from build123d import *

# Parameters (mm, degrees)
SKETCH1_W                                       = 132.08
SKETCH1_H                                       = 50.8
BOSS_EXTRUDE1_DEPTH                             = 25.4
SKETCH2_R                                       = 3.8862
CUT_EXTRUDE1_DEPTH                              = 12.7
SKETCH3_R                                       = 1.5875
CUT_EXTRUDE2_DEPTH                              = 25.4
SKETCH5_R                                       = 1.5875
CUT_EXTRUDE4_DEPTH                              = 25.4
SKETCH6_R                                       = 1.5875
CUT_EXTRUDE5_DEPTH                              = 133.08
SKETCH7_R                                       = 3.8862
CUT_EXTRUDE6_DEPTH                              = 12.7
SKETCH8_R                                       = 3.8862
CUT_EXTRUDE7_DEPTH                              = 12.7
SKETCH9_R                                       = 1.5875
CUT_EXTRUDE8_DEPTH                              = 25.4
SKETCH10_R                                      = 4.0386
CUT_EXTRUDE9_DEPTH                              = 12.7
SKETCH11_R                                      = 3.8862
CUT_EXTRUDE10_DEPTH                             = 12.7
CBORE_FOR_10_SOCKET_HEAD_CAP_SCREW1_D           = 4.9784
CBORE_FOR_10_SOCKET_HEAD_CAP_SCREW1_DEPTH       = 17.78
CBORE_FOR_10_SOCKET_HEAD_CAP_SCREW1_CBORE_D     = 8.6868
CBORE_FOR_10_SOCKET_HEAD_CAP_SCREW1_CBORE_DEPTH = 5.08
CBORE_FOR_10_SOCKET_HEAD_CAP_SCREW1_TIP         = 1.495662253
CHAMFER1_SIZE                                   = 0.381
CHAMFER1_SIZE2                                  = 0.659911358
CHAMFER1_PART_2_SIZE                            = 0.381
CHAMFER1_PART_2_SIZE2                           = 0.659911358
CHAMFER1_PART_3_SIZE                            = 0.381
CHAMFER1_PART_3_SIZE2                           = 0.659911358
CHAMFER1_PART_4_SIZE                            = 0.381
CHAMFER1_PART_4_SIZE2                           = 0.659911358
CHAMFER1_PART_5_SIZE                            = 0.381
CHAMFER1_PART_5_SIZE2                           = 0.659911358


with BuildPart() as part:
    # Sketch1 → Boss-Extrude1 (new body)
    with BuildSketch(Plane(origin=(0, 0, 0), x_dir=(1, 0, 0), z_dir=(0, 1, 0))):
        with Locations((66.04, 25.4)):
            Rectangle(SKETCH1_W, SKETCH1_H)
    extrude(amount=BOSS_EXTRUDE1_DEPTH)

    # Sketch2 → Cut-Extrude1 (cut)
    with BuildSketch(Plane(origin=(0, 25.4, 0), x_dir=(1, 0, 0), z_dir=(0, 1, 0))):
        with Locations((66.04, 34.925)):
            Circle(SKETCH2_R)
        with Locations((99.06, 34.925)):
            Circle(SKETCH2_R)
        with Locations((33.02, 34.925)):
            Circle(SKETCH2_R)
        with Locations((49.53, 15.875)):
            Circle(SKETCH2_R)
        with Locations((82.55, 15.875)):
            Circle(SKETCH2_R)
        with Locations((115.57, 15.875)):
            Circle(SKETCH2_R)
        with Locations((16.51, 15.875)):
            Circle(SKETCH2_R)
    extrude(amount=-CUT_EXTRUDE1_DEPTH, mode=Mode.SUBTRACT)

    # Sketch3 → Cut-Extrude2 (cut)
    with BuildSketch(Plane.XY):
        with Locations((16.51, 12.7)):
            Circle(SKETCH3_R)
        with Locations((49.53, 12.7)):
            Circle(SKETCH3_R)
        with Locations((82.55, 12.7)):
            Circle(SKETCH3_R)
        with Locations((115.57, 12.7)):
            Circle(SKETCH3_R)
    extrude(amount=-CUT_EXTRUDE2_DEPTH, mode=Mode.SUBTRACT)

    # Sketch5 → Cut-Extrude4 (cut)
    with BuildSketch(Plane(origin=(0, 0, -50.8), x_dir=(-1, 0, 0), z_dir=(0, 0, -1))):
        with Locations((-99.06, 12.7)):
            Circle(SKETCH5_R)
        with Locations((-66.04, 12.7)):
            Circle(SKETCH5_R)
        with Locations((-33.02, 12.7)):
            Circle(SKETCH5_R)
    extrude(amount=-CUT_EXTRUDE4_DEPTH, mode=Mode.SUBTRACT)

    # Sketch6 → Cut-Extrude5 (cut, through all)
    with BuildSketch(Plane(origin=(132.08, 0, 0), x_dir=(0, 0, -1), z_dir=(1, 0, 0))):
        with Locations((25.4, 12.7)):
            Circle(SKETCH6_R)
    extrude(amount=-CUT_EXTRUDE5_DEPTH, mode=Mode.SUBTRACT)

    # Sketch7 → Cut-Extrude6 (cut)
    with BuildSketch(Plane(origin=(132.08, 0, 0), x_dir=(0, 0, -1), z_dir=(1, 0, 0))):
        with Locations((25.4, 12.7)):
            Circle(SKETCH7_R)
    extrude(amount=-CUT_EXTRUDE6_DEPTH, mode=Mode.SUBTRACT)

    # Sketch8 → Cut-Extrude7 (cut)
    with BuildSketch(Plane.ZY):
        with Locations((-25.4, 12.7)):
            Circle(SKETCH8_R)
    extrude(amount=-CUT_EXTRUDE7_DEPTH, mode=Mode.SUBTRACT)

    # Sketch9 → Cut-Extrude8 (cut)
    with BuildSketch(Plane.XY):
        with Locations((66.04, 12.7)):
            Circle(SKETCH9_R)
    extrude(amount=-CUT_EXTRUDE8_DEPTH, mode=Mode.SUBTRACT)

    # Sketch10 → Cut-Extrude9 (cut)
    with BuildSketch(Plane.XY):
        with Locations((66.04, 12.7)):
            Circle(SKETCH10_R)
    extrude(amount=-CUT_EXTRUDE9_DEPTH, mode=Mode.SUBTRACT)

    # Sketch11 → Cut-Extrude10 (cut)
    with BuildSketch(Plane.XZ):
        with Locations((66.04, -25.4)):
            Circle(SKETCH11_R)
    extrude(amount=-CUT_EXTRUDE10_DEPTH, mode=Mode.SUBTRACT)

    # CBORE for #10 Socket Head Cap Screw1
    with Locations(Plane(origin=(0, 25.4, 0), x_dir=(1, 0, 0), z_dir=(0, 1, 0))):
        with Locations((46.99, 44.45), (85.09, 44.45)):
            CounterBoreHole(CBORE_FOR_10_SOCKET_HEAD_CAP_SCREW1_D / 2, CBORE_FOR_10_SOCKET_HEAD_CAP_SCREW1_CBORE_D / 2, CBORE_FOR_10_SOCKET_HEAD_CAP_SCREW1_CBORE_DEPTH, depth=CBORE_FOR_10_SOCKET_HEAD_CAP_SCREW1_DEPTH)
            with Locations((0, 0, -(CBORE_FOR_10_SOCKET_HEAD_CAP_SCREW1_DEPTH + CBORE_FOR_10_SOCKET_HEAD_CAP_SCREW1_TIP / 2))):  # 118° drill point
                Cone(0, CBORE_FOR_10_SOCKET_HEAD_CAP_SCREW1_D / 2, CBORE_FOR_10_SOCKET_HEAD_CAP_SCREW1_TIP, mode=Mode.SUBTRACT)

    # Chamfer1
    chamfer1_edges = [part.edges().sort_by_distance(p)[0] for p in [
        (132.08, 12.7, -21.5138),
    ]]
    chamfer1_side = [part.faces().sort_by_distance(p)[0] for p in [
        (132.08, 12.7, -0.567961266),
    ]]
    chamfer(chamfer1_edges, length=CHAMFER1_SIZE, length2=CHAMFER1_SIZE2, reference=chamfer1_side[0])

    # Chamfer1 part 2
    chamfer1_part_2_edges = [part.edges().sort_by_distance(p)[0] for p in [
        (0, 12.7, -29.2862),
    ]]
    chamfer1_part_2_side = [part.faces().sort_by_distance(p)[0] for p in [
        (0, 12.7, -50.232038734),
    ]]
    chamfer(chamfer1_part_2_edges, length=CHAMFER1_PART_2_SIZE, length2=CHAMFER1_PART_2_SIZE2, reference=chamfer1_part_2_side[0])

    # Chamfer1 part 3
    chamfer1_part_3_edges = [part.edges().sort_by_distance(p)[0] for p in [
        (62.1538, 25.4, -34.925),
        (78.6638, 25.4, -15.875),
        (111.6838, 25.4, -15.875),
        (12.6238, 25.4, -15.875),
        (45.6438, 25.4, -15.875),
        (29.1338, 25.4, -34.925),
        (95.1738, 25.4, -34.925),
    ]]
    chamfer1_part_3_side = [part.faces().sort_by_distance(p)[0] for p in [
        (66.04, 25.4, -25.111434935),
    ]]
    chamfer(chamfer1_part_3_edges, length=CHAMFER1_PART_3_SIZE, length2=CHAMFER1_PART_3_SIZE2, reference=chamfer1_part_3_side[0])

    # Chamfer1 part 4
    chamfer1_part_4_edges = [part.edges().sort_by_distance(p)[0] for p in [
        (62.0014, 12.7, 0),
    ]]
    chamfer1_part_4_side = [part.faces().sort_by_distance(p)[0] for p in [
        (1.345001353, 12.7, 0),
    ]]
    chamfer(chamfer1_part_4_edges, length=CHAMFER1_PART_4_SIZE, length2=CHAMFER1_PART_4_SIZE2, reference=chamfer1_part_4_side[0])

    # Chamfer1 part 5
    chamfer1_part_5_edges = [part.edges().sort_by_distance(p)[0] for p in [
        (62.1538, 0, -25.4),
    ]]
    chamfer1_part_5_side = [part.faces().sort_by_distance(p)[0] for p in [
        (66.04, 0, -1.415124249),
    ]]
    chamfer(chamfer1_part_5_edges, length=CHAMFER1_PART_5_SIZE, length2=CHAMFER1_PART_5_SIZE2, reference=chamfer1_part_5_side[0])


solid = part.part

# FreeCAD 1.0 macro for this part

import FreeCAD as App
import Part
import Sketcher

V = App.Vector
Q = App.Units.Quantity


def edges_at(feature, points):
    """Names of the edges that pass closest to the given points."""
    edges = feature.Shape.Edges
    near = lambda p: min(range(len(edges)), key=lambda i: edges[i].distToShape(Part.Vertex(*p))[0])
    return sorted({f"Edge{near(p) + 1}" for p in points})

doc = App.newDocument("Part")
body = doc.addObject("PartDesign::Body", "Body")

# Sketch on XZ plane
sketch1 = body.newObject("Sketcher::SketchObject", "Sketch")
sketch1.AttachmentSupport = (doc.getObject("XZ_Plane"), [""])
sketch1.MapMode = "FlatFace"
sketch1.addGeometry([
    Part.LineSegment(V(0, -50.8, 0), V(0, 0, 0)),
    Part.LineSegment(V(0, 0, 0), V(132.08, 0, 0)),
    Part.LineSegment(V(132.08, 0, 0), V(132.08, -50.8, 0)),
    Part.LineSegment(V(132.08, -50.8, 0), V(0, -50.8, 0)),
], False)
sketch1.addConstraint([
    Sketcher.Constraint("Coincident", 0, 2, 1, 1),
    Sketcher.Constraint("Coincident", 1, 2, 2, 1),
    Sketcher.Constraint("Coincident", 2, 2, 3, 1),
    Sketcher.Constraint("Coincident", 3, 2, 0, 1),
    Sketcher.Constraint("Vertical", 0),
    Sketcher.Constraint("Horizontal", 1),
    Sketcher.Constraint("Vertical", 2),
    Sketcher.Constraint("Horizontal", 3),
    Sketcher.Constraint("Coincident", 0, 2, -1, 1),
    Sketcher.Constraint("DistanceY", 0, 1, 0, 2, Q("2 in")),
    Sketcher.Constraint("DistanceX", 1, 1, 1, 2, Q("5.2 in")),
])
pad1 = body.newObject("PartDesign::Pad", "Pad")
pad1.Profile = sketch1
pad1.Length = Q("1 in")
pad1.Reversed = True

# Sketch on XZ plane
sketch2 = body.newObject("Sketcher::SketchObject", "Sketch001")
sketch2.AttachmentSupport = (doc.getObject("XZ_Plane"), [""])
sketch2.MapMode = "FlatFace"
sketch2.AttachmentOffset = App.Placement(V(0, 0, -1 * 25.4), App.Rotation())
sketch2.addGeometry([
    Part.Circle(V(66.04, -34.925, 0), V(0, 0, 1), 3.8862),  # 0
    Part.Circle(V(99.06, -34.925, 0), V(0, 0, 1), 3.8862),  # 1
    Part.Circle(V(33.02, -34.925, 0), V(0, 0, 1), 3.8862),  # 2
    Part.Circle(V(49.53, -15.875, 0), V(0, 0, 1), 3.8862),  # 3
    Part.Circle(V(82.55, -15.875, 0), V(0, 0, 1), 3.8862),  # 4
    Part.Circle(V(115.57, -15.875, 0), V(0, 0, 1), 3.8862),  # 5
    Part.Circle(V(16.51, -15.875, 0), V(0, 0, 1), 3.8862),  # 6
], False)
sketch2.addConstraint([
    Sketcher.Constraint("Equal", 0, 1),
    Sketcher.Constraint("Equal", 1, 2),
    Sketcher.Constraint("Equal", 2, 3),
    Sketcher.Constraint("Equal", 3, 4),
    Sketcher.Constraint("Equal", 4, 5),
    Sketcher.Constraint("Equal", 5, 6),
    Sketcher.Constraint("Horizontal", 0, 3, 1, 3),
    Sketcher.Constraint("Horizontal", 1, 3, 2, 3),
    Sketcher.Constraint("Horizontal", 3, 3, 4, 3),
    Sketcher.Constraint("Horizontal", 4, 3, 5, 3),
    Sketcher.Constraint("Horizontal", 5, 3, 6, 3),
    Sketcher.Constraint("Diameter", 0, Q("0.306 in")),
    Sketcher.Constraint("DistanceX", -1, 1, 0, 3, Q("2.6 in")),
    Sketcher.Constraint("DistanceX", -1, 1, 1, 3, Q("3.9 in")),
    Sketcher.Constraint("DistanceX", -1, 1, 2, 3, Q("1.3 in")),
    Sketcher.Constraint("DistanceX", 3, 3, 4, 3, Q("1.3 in")),
    Sketcher.Constraint("DistanceX", 4, 3, 5, 3, Q("1.3 in")),
    Sketcher.Constraint("DistanceX", 6, 3, 3, 3, Q("1.3 in")),
    Sketcher.Constraint("DistanceX", -1, 1, 3, 3, Q("1.95 in")),
    Sketcher.Constraint("DistanceY", 2, 3, 3, 3, Q("0.75 in")),
    Sketcher.Constraint("DistanceY", 0, 3, -1, 1, Q("1.375 in")),
])
pocket1 = body.newObject("PartDesign::Pocket", "Pocket")
pocket1.Profile = sketch2
pocket1.Length = Q("0.5 in")
pocket1.Reversed = True

# Sketch on XY plane
sketch3 = body.newObject("Sketcher::SketchObject", "Sketch002")
sketch3.AttachmentSupport = (doc.getObject("XY_Plane"), [""])
sketch3.MapMode = "FlatFace"
sketch3.addGeometry([
    Part.Circle(V(16.51, 12.7, 0), V(0, 0, 1), 1.5875),
    Part.Circle(V(49.53, 12.7, 0), V(0, 0, 1), 1.5875),
    Part.Circle(V(82.55, 12.7, 0), V(0, 0, 1), 1.5875),
    Part.Circle(V(115.57, 12.7, 0), V(0, 0, 1), 1.5875),
], False)
sketch3.addConstraint([
    Sketcher.Constraint("Equal", 0, 1),
    Sketcher.Constraint("Equal", 1, 2),
    Sketcher.Constraint("Equal", 2, 3),
    Sketcher.Constraint("Horizontal", 0, 3, 1, 3),
    Sketcher.Constraint("Horizontal", 1, 3, 2, 3),
    Sketcher.Constraint("Horizontal", 2, 3, 3, 3),
    Sketcher.Constraint("Diameter", 0, Q("0.125 in")),
    Sketcher.Constraint("DistanceY", -1, 1, 0, 3, Q("0.5 in")),
    Sketcher.Constraint("DistanceX", 0, 3, 1, 3, Q("1.3 in")),
    Sketcher.Constraint("DistanceX", 1, 3, 2, 3, Q("1.3 in")),
    Sketcher.Constraint("DistanceX", 2, 3, 3, 3, Q("1.3 in")),
    Sketcher.Constraint("DistanceX", -1, 1, 0, 3, Q("0.65 in")),
])
pocket2 = body.newObject("PartDesign::Pocket", "Pocket001")
pocket2.Profile = sketch3
pocket2.Length = Q("1 in")

# Sketch on XY plane
sketch4 = body.newObject("Sketcher::SketchObject", "Sketch003")
sketch4.AttachmentSupport = (doc.getObject("XY_Plane"), [""])
sketch4.MapMode = "FlatFace"
sketch4.AttachmentOffset = App.Placement(V(0, 0, -2 * 25.4), App.Rotation())
sketch4.addGeometry([
    Part.Circle(V(99.06, 12.7, 0), V(0, 0, 1), 1.5875),
    Part.Circle(V(66.04, 12.7, 0), V(0, 0, 1), 1.5875),
    Part.Circle(V(33.02, 12.7, 0), V(0, 0, 1), 1.5875),
], False)
sketch4.addConstraint([
    Sketcher.Constraint("Equal", 0, 1),
    Sketcher.Constraint("Equal", 1, 2),
    Sketcher.Constraint("Horizontal", 0, 3, 1, 3),
    Sketcher.Constraint("Horizontal", 1, 3, 2, 3),
    Sketcher.Constraint("Diameter", 0, Q("0.125 in")),
    Sketcher.Constraint("DistanceX", -1, 1, 0, 3, Q("3.9 in")),
    Sketcher.Constraint("DistanceY", -1, 1, 0, 3, Q("0.5 in")),
    Sketcher.Constraint("DistanceX", -1, 1, 1, 3, Q("2.6 in")),
    Sketcher.Constraint("DistanceX", -1, 1, 2, 3, Q("1.3 in")),
])
pocket3 = body.newObject("PartDesign::Pocket", "Pocket002")
pocket3.Profile = sketch4
pocket3.Length = Q("1 in")
pocket3.Reversed = True

# Sketch on YZ plane
sketch5 = body.newObject("Sketcher::SketchObject", "Sketch004")
sketch5.AttachmentSupport = (doc.getObject("YZ_Plane"), [""])
sketch5.MapMode = "FlatFace"
sketch5.AttachmentOffset = App.Placement(V(0, 0, 5.2 * 25.4), App.Rotation())
sketch5.addGeometry(Part.Circle(V(12.7, -25.4, 0), V(0, 0, 1), 1.5875), False)
sketch5.addConstraint([
    Sketcher.Constraint("Diameter", 0, Q("0.125 in")),
    Sketcher.Constraint("DistanceY", 0, 3, -1, 1, Q("1 in")),
    Sketcher.Constraint("DistanceX", -1, 1, 0, 3, Q("0.5 in")),
])
pocket4 = body.newObject("PartDesign::Pocket", "Pocket003")
pocket4.Profile = sketch5
pocket4.Type = "ThroughAll"

# Sketch on YZ plane
sketch6 = body.newObject("Sketcher::SketchObject", "Sketch005")
sketch6.AttachmentSupport = (doc.getObject("YZ_Plane"), [""])
sketch6.MapMode = "FlatFace"
sketch6.AttachmentOffset = App.Placement(V(0, 0, 5.2 * 25.4), App.Rotation())
sketch6.addGeometry(Part.Circle(V(12.7, -25.4, 0), V(0, 0, 1), 3.8862), False)
sketch6.addConstraint([
    Sketcher.Constraint("Diameter", 0, Q("0.306 in")),
    Sketcher.Constraint("DistanceY", 0, 3, -1, 1, Q("1 in")),
    Sketcher.Constraint("DistanceX", -1, 1, 0, 3, Q("0.5 in")),
])
pocket5 = body.newObject("PartDesign::Pocket", "Pocket004")
pocket5.Profile = sketch6
pocket5.Length = Q("0.5 in")

# Sketch on YZ plane
sketch7 = body.newObject("Sketcher::SketchObject", "Sketch006")
sketch7.AttachmentSupport = (doc.getObject("YZ_Plane"), [""])
sketch7.MapMode = "FlatFace"
sketch7.addGeometry(Part.Circle(V(12.7, -25.4, 0), V(0, 0, 1), 3.8862), False)
sketch7.addConstraint([
    Sketcher.Constraint("Diameter", 0, Q("0.306 in")),
    Sketcher.Constraint("DistanceY", 0, 3, -1, 1, Q("1 in")),
    Sketcher.Constraint("DistanceX", -1, 1, 0, 3, Q("0.5 in")),
])
pocket6 = body.newObject("PartDesign::Pocket", "Pocket005")
pocket6.Profile = sketch7
pocket6.Length = Q("0.5 in")
pocket6.Reversed = True

# Sketch on XY plane
sketch8 = body.newObject("Sketcher::SketchObject", "Sketch007")
sketch8.AttachmentSupport = (doc.getObject("XY_Plane"), [""])
sketch8.MapMode = "FlatFace"
sketch8.addGeometry(Part.Circle(V(66.04, 12.7, 0), V(0, 0, 1), 1.5875), False)
sketch8.addConstraint([
    Sketcher.Constraint("Diameter", 0, Q("0.125 in")),
    Sketcher.Constraint("DistanceX", -1, 1, 0, 3, Q("2.6 in")),
    Sketcher.Constraint("DistanceY", -1, 1, 0, 3, Q("0.5 in")),
])
pocket7 = body.newObject("PartDesign::Pocket", "Pocket006")
pocket7.Profile = sketch8
pocket7.Length = Q("1 in")

# Sketch on XY plane
sketch9 = body.newObject("Sketcher::SketchObject", "Sketch008")
sketch9.AttachmentSupport = (doc.getObject("XY_Plane"), [""])
sketch9.MapMode = "FlatFace"
sketch9.addGeometry(Part.Circle(V(66.04, 12.7, 0), V(0, 0, 1), 4.0386), False)
sketch9.addConstraint([
    Sketcher.Constraint("Diameter", 0, Q("0.318 in")),
    Sketcher.Constraint("DistanceX", -1, 1, 0, 3, Q("2.6 in")),
    Sketcher.Constraint("DistanceY", -1, 1, 0, 3, Q("0.5 in")),
])
pocket8 = body.newObject("PartDesign::Pocket", "Pocket007")
pocket8.Profile = sketch9
pocket8.Length = Q("0.5 in")

# Sketch on XZ plane
sketch10 = body.newObject("Sketcher::SketchObject", "Sketch009")
sketch10.AttachmentSupport = (doc.getObject("XZ_Plane"), [""])
sketch10.MapMode = "FlatFace"
sketch10.addGeometry(Part.Circle(V(66.04, -25.4, 0), V(0, 0, 1), 3.8862), False)
sketch10.addConstraint([
    Sketcher.Constraint("Diameter", 0, Q("0.306 in")),
    Sketcher.Constraint("DistanceY", 0, 3, -1, 1, Q("1 in")),
    Sketcher.Constraint("DistanceX", -1, 1, 0, 3, Q("2.6 in")),
])
pocket9 = body.newObject("PartDesign::Pocket", "Pocket008")
pocket9.Profile = sketch10
pocket9.Length = Q("0.5 in")

# Sketch on XZ plane
sketch11 = body.newObject("Sketcher::SketchObject", "Sketch010")
sketch11.AttachmentSupport = (doc.getObject("XZ_Plane"), [""])
sketch11.MapMode = "FlatFace"
sketch11.AttachmentOffset = App.Placement(V(0, 0, -1 * 25.4), App.Rotation())
sketch11.addGeometry([
    Part.Circle(V(46.99, -44.45, 0), V(0, 0, 1), 2.4892),
    Part.Circle(V(85.09, -44.45, 0), V(0, 0, 1), 2.4892),
], False)
sketch11.addConstraint([
    Sketcher.Constraint("Equal", 0, 1),
    Sketcher.Constraint("Horizontal", 0, 3, 1, 3),
    Sketcher.Constraint("Diameter", 0, Q("0.196 in")),
    Sketcher.Constraint("DistanceX", 0, 3, 1, 3, Q("1.5 in")),
    Sketcher.Constraint("DistanceX", -1, 1, 0, 3, Q("1.85 in")),
    Sketcher.Constraint("DistanceY", 0, 3, -1, 1, Q("1.75 in")),
])
doc.recompute()
hole = body.newObject("PartDesign::Hole", "Hole")
hole.Profile = sketch11
hole.ThreadType = "None"
hole.Diameter = Q("0.196 in")
hole.DepthType = "Dimension"
hole.Depth = Q("0.7 in")
hole.DrillPoint = "Angled"
hole.DrillPointAngle = 118
hole.HoleCutType = "Counterbore"
hole.HoleCutDiameter = Q("0.342 in")
hole.HoleCutDepth = Q("0.2 in")
hole.Reversed = True
doc.recompute()

chamfer = body.newObject("PartDesign::Chamfer", "Chamfer")
chamfer.Base = (hole, edges_at(hole, [(132.08, 12.7, -21.514)]))
chamfer.ChamferType = "Two distances"
chamfer.Size = Q("0.015 in")
chamfer.Size2 = 0.659911
doc.recompute()

chamfer2 = body.newObject("PartDesign::Chamfer", "Chamfer001")
chamfer2.Base = (chamfer, edges_at(chamfer, [(0, 12.7, -29.286)]))
chamfer2.ChamferType = "Two distances"
chamfer2.Size = Q("0.015 in")
chamfer2.Size2 = 0.659911
doc.recompute()

chamfer3 = body.newObject("PartDesign::Chamfer", "Chamfer002")
chamfer3.Base = (chamfer2, edges_at(chamfer2, [
    (62.154, 25.4, -34.925),
    (78.664, 25.4, -15.875),
    (111.684, 25.4, -15.875),
    (12.624, 25.4, -15.875),
    (45.644, 25.4, -15.875),
    (29.134, 25.4, -34.925),
    (95.174, 25.4, -34.925),
]))
chamfer3.ChamferType = "Two distances"
chamfer3.Size = Q("0.015 in")
chamfer3.Size2 = 0.659911
doc.recompute()

chamfer4 = body.newObject("PartDesign::Chamfer", "Chamfer003")
chamfer4.Base = (chamfer3, edges_at(chamfer3, [(62.001, 12.7, 0)]))
chamfer4.ChamferType = "Two distances"
chamfer4.Size = Q("0.015 in")
chamfer4.Size2 = 0.659911
doc.recompute()

chamfer5 = body.newObject("PartDesign::Chamfer", "Chamfer004")
chamfer5.Base = (chamfer4, edges_at(chamfer4, [(62.154, 0, -25.4)]))
chamfer5.ChamferType = "Two distances"
chamfer5.Size = Q("0.015 in")
chamfer5.Size2 = 0.659911

doc.recompute()
